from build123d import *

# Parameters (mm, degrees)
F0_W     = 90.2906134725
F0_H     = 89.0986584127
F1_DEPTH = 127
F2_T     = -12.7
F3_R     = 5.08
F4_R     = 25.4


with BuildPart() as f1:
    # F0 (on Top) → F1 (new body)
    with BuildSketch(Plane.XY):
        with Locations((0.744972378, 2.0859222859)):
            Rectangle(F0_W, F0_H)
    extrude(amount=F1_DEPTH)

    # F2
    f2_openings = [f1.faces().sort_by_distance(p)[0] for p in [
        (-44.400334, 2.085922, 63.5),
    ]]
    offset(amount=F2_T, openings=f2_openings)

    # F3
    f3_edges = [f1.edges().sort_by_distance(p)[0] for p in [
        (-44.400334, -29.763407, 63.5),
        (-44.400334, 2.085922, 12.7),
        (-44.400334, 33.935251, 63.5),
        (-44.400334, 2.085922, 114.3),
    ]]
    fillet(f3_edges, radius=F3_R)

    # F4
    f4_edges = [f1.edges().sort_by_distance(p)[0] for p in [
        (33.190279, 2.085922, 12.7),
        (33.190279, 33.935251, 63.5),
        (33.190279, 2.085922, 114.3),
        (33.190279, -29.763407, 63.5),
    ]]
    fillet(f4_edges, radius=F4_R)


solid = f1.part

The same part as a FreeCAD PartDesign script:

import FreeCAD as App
import Part
import Sketcher
from FreeCAD import Vector
Q = App.Units.Quantity


def edges_at(feature, points):
    """Names of the edges that pass closest to the given points."""
    edges = feature.Shape.Edges
    near = lambda p: min(range(len(edges)), key=lambda i: edges[i].distToShape(Part.Vertex(*p))[0])
    return sorted({f"Edge{near(p) + 1}" for p in points})


def faces_at(feature, points):
    """Names of the faces that lie closest to the given points."""
    faces = feature.Shape.Faces
    near = lambda p: min(range(len(faces)), key=lambda i: faces[i].distToShape(Part.Vertex(*p))[0])
    return sorted({f"Face{near(p) + 1}" for p in points})


def add_polygon(sketch, points):
    """Adds a closed chain of lines whose ends are joined by coincident constraints."""
    first, n = sketch.GeometryCount, len(points)
    for a, b in zip(points, points[1:] + points[:1]):
        sketch.addGeometry(Part.LineSegment(App.Vector(*a, 0), App.Vector(*b, 0)), False)
    for i in range(n):
        sketch.addConstraint(Sketcher.Constraint("Coincident", first + i, 2, first + (i + 1) % n, 1))

doc = App.newDocument("Part")
params = doc.addObject("Spreadsheet::Sheet", "Params")
for row, (alias, value) in enumerate([
    ("pad1_length", "5 in"),
    ("thickness_wall", "0.5 in"),
    ("fillet_radius", "0.2 in"),
    ("fillet2_radius", "1 in"),
], start=1):
    params.set(f"A{row}", alias)
    params.set(f"B{row}", "=" + value)
    params.setAlias(f"B{row}", alias)

body = doc.addObject("PartDesign::Body", "Body")

sketch1 = doc.addObject("Sketcher::SketchObject", "Sketch")
body.addObject(sketch1)
sketch1.AttachmentSupport = (doc.XY_Plane, [""])
sketch1.MapMode = "FlatFace"
add_polygon(sketch1, [(-44, 47), (-44, -42), (46, -42), (46, 47)])
sketch1.addConstraint(Sketcher.Constraint("Vertical", 0))
sketch1.addConstraint(Sketcher.Constraint("Horizontal", 1))
sketch1.addConstraint(Sketcher.Constraint("Vertical", 2))
sketch1.addConstraint(Sketcher.Constraint("Horizontal", 3))
sketch1.addConstraint(Sketcher.Constraint("DistanceY", 0, 2, 0, 1, Q("89.098658 mm")))
sketch1.addConstraint(Sketcher.Constraint("DistanceX", 1, 1, 1, 2, Q("90.290613 mm")))
sketch1.addConstraint(Sketcher.Constraint("DistanceX", -1, 1, 1, 2, Q("45.890279 mm")))
sketch1.addConstraint(Sketcher.Constraint("DistanceY", -1, 1, 2, 2, Q("46.635251 mm")))
pad1 = doc.addObject("PartDesign::Pad", "Pad")
body.addObject(pad1)
pad1.Profile = sketch1
pad1.setExpression("Length", "Params.pad1_length")
doc.recompute()

thickness = doc.addObject("PartDesign::Thickness", "Thickness")
body.addObject(thickness)
thickness.Base = (pad1, faces_at(pad1, [(-44.4, 2.086, 63.5)]))
thickness.setExpression("Value", "Params.thickness_wall")
thickness.Reversed = True
thickness.Join = "Arc"
doc.recompute()

fillet = doc.addObject("PartDesign::Fillet", "Fillet")
body.addObject(fillet)
fillet.Base = (thickness, edges_at(thickness, [
    (-44.4, -29.763, 63.5),
    (-44.4, 2.086, 12.7),
    (-44.4, 33.935, 63.5),
    (-44.4, 2.086, 114.3),
]))
fillet.setExpression("Radius", "Params.fillet_radius")
doc.recompute()

fillet2 = doc.addObject("PartDesign::Fillet", "Fillet001")
body.addObject(fillet2)
fillet2.Base = (fillet, edges_at(fillet, [
    (33.19, 2.086, 12.7),
    (33.19, 33.935, 63.5),
    (33.19, 2.086, 114.3),
    (33.19, -29.763, 63.5),
]))
fillet2.setExpression("Radius", "Params.fillet2_radius")

doc.recompute()
